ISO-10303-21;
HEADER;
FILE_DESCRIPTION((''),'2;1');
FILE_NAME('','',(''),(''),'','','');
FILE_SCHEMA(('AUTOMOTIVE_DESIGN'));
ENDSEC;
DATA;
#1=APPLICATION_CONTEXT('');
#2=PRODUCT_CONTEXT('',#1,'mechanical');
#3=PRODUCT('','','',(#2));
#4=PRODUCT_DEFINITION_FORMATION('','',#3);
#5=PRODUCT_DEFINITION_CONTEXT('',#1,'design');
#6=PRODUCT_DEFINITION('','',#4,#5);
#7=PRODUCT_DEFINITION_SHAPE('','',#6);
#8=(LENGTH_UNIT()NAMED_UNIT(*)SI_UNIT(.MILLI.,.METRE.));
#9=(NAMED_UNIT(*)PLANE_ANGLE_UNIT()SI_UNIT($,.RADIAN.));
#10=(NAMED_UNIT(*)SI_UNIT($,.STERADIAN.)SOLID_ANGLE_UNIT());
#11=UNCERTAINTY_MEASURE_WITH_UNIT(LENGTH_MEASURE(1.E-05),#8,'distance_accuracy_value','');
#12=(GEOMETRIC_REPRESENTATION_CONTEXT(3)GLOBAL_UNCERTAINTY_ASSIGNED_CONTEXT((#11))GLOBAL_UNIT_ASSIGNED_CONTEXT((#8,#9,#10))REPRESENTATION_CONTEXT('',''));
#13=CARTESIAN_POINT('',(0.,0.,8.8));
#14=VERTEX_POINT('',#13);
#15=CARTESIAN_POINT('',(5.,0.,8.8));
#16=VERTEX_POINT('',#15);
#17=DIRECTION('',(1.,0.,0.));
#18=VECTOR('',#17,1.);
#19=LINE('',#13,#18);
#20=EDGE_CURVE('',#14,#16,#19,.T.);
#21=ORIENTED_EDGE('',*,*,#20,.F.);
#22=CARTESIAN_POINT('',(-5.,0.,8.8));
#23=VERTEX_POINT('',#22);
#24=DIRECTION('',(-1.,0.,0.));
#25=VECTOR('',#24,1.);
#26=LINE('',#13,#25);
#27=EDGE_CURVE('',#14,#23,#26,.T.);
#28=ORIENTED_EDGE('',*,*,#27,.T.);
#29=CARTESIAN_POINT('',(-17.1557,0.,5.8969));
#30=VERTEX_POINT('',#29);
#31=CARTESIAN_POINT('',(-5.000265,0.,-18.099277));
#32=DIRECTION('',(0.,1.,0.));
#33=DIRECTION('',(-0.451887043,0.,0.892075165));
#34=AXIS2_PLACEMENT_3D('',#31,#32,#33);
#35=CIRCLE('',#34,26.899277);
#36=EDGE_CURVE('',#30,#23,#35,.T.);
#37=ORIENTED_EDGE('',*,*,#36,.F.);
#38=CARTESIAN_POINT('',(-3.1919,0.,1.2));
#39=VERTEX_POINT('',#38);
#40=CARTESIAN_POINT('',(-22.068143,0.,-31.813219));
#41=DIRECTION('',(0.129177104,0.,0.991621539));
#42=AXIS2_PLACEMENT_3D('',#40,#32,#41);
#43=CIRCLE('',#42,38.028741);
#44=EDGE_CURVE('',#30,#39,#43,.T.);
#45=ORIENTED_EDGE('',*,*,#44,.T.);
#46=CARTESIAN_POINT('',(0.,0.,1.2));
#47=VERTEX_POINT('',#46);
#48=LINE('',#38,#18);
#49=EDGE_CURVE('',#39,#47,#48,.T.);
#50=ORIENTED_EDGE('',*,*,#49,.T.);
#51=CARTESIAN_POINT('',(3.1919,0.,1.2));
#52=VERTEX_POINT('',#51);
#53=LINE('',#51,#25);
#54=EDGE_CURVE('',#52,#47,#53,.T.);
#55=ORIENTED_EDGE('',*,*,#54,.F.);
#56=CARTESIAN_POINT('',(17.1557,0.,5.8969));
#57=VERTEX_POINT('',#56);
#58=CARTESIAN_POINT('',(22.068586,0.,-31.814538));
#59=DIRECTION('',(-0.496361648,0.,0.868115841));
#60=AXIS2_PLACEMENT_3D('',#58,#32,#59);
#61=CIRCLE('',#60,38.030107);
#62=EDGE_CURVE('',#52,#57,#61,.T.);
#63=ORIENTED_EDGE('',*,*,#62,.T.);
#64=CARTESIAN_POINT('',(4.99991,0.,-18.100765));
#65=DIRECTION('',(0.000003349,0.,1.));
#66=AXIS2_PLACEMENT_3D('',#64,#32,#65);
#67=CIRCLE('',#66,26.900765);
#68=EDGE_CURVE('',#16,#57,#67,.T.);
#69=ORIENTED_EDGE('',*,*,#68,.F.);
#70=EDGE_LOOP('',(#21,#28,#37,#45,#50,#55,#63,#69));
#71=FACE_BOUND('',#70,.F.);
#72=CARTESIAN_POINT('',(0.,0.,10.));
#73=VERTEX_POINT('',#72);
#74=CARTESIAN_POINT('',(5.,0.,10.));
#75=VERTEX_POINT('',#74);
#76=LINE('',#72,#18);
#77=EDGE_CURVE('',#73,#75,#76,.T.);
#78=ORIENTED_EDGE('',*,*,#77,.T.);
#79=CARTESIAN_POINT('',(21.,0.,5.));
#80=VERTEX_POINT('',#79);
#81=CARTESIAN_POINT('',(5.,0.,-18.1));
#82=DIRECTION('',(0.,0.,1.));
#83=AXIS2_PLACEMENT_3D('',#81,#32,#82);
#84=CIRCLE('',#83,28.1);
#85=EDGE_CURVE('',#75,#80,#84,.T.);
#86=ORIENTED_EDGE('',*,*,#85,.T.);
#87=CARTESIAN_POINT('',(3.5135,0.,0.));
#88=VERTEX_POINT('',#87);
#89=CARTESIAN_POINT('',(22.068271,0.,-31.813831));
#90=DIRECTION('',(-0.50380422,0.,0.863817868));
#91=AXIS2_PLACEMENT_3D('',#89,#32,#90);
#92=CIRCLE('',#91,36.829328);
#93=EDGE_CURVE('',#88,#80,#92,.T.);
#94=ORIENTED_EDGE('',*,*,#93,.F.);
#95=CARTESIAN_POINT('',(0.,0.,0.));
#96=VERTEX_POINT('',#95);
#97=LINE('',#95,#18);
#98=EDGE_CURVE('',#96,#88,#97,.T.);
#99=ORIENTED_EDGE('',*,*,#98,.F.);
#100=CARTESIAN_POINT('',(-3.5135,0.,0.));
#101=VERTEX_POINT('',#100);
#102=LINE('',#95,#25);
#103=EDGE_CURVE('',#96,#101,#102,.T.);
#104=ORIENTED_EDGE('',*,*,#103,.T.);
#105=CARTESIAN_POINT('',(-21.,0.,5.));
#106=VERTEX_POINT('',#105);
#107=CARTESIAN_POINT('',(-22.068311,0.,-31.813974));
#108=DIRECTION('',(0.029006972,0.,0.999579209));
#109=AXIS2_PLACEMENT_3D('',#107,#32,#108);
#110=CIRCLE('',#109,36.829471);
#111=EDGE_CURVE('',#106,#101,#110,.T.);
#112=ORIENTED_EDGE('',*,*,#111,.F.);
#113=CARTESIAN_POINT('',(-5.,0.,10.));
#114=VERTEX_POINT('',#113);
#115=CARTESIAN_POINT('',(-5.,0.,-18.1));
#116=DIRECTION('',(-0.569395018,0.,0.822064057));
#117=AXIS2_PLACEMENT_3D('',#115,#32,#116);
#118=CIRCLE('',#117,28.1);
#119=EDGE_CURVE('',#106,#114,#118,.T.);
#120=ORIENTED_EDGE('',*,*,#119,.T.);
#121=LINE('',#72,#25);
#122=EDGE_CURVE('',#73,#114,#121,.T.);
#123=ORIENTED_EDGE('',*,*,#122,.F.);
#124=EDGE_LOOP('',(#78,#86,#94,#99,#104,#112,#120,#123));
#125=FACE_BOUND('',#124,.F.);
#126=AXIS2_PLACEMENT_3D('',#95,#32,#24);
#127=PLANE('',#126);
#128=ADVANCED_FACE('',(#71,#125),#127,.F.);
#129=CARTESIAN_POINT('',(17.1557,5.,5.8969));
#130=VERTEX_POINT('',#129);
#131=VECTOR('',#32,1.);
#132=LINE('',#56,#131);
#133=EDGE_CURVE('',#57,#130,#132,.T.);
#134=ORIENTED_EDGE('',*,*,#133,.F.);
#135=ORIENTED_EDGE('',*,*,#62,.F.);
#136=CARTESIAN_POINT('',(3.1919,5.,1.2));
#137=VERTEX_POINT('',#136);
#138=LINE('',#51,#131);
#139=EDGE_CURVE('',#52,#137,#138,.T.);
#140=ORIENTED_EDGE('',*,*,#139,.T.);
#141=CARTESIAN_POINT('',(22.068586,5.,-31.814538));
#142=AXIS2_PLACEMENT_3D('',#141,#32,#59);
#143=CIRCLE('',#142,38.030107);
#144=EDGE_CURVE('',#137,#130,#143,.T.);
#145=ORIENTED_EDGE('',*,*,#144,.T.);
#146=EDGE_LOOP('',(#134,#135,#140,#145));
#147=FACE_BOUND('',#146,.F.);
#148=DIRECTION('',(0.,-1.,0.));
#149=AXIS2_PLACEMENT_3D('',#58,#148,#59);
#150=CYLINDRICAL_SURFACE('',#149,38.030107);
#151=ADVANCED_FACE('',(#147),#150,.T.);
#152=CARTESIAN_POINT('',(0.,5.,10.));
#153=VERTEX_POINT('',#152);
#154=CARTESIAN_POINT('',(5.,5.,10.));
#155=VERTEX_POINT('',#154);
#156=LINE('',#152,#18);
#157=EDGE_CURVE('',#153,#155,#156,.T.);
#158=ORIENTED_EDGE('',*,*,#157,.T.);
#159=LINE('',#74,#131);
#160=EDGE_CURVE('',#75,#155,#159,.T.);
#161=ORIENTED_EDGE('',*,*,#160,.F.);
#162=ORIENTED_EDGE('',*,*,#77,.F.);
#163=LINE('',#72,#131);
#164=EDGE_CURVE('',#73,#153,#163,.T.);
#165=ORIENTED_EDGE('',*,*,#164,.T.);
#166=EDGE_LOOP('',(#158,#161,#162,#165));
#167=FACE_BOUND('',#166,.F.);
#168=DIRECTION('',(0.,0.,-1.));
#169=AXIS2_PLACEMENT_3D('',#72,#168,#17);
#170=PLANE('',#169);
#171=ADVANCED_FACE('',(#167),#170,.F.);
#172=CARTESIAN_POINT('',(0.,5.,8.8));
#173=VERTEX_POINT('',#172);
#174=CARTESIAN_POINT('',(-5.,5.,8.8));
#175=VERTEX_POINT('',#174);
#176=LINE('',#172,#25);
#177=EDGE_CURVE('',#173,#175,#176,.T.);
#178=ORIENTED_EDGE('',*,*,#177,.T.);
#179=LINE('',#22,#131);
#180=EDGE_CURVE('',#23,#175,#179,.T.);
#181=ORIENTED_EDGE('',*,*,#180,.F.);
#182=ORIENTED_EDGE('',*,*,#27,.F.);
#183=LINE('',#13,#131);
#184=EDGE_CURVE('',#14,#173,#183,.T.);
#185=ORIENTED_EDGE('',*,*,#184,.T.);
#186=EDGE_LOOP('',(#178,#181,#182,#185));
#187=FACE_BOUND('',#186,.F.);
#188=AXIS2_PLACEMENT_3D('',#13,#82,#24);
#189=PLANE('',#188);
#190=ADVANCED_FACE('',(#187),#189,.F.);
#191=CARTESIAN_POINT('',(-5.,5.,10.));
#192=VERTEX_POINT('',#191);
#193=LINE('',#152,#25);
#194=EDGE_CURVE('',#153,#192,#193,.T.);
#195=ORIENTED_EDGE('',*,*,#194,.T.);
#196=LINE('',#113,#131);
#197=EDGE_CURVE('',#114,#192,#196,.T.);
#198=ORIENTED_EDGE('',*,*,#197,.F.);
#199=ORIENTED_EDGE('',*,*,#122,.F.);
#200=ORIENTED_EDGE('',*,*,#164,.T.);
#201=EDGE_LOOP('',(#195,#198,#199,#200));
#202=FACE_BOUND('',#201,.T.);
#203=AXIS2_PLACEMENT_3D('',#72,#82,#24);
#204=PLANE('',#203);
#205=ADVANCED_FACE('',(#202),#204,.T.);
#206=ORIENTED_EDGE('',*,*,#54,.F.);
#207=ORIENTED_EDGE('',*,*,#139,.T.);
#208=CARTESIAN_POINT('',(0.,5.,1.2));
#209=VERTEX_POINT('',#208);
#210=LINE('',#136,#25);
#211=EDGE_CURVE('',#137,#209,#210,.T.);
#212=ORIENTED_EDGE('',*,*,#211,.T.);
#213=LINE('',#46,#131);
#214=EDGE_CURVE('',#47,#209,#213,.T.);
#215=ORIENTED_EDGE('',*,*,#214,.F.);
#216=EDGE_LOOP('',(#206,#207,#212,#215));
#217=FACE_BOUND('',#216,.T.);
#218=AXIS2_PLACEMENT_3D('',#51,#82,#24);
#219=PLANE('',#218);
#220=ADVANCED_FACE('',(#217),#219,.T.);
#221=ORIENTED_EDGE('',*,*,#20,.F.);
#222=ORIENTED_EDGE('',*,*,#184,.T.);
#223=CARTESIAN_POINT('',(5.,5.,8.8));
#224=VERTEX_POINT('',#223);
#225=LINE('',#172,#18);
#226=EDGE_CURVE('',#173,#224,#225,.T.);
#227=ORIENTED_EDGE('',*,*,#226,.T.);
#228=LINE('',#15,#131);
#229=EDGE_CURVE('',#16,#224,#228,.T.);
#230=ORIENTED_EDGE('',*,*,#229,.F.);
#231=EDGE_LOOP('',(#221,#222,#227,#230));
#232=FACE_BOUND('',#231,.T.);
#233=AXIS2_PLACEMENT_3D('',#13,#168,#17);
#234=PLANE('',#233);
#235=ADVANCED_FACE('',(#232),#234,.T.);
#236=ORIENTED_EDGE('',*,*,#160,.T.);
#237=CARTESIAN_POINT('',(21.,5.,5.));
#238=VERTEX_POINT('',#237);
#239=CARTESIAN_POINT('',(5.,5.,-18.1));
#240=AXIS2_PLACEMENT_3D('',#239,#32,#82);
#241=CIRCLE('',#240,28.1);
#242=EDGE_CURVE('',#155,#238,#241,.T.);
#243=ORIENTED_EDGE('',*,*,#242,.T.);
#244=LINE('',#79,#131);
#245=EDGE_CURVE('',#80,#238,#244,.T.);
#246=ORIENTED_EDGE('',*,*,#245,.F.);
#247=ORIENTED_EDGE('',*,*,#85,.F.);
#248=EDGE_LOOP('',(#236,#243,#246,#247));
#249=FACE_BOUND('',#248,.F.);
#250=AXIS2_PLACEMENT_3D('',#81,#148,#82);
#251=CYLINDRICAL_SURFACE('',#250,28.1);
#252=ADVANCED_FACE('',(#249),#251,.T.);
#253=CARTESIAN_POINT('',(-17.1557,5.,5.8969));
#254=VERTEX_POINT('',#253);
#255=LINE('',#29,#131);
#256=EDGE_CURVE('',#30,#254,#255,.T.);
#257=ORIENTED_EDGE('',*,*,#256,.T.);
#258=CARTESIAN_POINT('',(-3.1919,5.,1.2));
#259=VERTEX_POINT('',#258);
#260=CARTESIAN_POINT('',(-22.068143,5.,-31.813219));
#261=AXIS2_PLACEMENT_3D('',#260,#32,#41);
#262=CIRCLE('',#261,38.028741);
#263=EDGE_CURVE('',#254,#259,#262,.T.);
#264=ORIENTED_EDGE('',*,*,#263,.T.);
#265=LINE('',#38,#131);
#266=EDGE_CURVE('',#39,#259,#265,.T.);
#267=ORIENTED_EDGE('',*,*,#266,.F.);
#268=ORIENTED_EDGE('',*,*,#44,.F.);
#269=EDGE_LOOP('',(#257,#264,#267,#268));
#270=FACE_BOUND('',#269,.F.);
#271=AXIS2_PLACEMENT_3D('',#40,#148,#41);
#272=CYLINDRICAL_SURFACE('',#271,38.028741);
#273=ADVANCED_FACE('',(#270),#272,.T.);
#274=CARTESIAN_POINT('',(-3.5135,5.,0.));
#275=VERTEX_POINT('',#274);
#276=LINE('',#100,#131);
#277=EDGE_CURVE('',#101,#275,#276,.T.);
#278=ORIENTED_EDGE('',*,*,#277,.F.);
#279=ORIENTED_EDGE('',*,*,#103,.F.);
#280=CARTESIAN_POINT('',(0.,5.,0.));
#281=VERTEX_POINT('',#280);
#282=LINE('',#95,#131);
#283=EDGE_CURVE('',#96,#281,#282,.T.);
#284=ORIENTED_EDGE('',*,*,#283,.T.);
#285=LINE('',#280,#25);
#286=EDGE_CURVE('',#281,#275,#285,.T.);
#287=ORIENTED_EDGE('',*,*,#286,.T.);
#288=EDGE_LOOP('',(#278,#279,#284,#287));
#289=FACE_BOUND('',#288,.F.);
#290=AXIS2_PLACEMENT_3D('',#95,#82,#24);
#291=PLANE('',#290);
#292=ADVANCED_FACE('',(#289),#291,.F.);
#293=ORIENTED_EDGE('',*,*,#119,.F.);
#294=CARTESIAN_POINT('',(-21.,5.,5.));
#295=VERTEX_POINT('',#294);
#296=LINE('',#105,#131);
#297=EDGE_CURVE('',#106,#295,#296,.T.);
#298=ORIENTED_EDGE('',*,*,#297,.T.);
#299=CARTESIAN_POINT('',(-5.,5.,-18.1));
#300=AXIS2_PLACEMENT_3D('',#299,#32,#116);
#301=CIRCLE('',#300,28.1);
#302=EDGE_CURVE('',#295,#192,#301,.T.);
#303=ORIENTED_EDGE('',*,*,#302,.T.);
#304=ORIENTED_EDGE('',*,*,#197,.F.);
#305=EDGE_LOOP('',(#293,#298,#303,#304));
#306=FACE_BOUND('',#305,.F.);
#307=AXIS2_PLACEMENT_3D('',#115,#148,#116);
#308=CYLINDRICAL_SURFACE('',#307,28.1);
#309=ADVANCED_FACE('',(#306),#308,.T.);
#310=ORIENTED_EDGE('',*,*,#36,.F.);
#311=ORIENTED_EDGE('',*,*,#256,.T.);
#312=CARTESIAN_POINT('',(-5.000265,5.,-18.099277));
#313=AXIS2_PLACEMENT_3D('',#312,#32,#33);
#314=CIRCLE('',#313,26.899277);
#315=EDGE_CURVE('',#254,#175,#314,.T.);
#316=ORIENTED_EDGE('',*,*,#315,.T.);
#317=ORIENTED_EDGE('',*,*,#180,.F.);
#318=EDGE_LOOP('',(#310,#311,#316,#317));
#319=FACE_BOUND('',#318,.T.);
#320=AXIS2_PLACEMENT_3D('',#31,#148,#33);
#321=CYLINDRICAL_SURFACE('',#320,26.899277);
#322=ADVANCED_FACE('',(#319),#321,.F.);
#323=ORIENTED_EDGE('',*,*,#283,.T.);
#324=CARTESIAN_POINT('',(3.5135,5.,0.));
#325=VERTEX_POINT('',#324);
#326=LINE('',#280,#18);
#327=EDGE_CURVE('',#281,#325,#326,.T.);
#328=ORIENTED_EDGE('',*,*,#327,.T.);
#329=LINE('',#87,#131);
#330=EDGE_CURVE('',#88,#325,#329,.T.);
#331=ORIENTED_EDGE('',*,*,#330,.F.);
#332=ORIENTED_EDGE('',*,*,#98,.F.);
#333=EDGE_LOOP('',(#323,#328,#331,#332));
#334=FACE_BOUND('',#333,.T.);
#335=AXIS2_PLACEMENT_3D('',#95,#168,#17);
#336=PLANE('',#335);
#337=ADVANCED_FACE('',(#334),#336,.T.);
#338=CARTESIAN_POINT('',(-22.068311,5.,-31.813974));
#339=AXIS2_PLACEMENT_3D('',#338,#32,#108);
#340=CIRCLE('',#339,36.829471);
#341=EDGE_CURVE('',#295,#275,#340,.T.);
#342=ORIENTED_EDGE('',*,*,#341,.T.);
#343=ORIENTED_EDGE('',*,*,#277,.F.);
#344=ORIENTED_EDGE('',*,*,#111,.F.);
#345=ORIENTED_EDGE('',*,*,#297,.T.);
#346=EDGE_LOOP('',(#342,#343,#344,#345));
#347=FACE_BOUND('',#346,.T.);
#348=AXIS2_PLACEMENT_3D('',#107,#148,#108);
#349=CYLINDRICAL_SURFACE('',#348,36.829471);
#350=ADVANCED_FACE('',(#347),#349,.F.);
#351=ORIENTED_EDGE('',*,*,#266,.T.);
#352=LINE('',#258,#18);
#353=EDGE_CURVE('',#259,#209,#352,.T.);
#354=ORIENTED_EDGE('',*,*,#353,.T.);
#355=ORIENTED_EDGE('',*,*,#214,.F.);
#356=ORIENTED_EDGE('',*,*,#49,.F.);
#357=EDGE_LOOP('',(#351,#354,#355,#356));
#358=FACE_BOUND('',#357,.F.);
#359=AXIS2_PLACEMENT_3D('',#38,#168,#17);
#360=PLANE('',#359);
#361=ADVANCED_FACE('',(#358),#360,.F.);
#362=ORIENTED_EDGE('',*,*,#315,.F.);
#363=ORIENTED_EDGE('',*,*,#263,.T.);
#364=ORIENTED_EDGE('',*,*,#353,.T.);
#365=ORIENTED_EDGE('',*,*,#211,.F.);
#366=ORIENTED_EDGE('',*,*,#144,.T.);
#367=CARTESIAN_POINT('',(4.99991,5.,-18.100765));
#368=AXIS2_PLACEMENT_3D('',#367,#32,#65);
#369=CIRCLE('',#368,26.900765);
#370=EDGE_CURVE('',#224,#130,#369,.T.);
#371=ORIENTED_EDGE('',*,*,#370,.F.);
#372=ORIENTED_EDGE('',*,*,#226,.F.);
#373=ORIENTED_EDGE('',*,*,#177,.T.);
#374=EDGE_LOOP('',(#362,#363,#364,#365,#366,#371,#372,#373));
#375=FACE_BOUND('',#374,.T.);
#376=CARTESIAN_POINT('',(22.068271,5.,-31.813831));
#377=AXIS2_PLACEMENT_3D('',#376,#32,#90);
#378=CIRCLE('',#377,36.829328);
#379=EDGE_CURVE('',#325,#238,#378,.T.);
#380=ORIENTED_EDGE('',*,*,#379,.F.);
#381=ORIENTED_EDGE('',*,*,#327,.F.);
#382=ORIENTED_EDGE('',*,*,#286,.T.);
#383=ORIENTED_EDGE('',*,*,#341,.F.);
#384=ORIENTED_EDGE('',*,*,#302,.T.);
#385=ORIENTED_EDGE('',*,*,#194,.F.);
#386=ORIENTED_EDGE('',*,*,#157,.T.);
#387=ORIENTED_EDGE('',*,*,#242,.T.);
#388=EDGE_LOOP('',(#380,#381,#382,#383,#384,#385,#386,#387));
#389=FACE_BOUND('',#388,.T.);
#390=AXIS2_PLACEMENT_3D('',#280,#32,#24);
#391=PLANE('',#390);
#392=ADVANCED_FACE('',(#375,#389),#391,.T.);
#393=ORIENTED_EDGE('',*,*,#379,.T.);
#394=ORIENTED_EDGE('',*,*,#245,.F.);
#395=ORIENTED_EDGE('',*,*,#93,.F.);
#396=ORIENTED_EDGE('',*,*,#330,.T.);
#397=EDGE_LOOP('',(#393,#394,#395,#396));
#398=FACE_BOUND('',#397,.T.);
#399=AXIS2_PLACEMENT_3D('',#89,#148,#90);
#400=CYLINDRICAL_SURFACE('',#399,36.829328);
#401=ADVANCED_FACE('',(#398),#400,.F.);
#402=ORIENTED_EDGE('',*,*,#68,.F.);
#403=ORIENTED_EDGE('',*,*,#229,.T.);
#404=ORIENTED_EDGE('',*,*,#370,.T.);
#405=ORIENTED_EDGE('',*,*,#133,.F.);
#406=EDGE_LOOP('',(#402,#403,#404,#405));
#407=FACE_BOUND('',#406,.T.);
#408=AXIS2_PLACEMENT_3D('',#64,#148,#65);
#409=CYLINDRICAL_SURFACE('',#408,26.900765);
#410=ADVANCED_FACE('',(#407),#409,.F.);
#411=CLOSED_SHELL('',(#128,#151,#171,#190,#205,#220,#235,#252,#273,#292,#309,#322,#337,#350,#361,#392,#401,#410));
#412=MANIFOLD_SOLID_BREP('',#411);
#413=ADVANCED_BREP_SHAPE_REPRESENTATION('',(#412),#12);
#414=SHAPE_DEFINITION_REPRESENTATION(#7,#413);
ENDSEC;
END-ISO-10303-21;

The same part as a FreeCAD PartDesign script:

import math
import FreeCAD as App
import Part
import Sketcher
from FreeCAD import Vector

doc = App.newDocument("Part")
body = doc.addObject("PartDesign::Body", "Body")

# Sketch on XZ plane
sketch1 = body.newObject("Sketcher::SketchObject", "Sketch")
sketch1.AttachmentSupport = (doc.getObject("XZ_Plane"), [""])
sketch1.MapMode = "FlatFace"
sketch1.addGeometry([
    Part.LineSegment(Vector(4, 0, 0), Vector(-4, 0, 0)),  # 0
    Part.ArcOfCircle(Part.Circle(Vector(-22, -32, 0), Vector(0, 0, 1), 37), math.radians(60), math.radians(88)),  # 1
    Part.ArcOfCircle(Part.Circle(Vector(-5, -18, 0), Vector(0, 0, 1), 28), math.radians(90), math.radians(125)),  # 2
    Part.LineSegment(Vector(-5, 10, 0), Vector(5, 10, 0)),  # 3
    Part.ArcOfCircle(Part.Circle(Vector(5, -18, 0), Vector(0, 0, 1), 28), math.radians(55), math.radians(90)),  # 4
    Part.ArcOfCircle(Part.Circle(Vector(22, -32, 0), Vector(0, 0, 1), 37), math.radians(92), math.radians(120)),  # 5
    Part.LineSegment(Vector(5, 9, 0), Vector(-5, 9, 0)),  # 6
    Part.ArcOfCircle(Part.Circle(Vector(-5, -18, 0), Vector(0, 0, 1), 27), math.radians(90), math.radians(117)),  # 7
    Part.ArcOfCircle(Part.Circle(Vector(-22, -32, 0), Vector(0, 0, 1), 38), math.radians(60), math.radians(83)),  # 8
    Part.LineSegment(Vector(-3, 1, 0), Vector(3, 1, 0)),  # 9
    Part.ArcOfCircle(Part.Circle(Vector(22, -32, 0), Vector(0, 0, 1), 38), math.radians(97), math.radians(120)),  # 10
    Part.ArcOfCircle(Part.Circle(Vector(5, -18, 0), Vector(0, 0, 1), 27), math.radians(63), math.radians(90)),  # 11
], False)
sketch1.addConstraint([
    Sketcher.Constraint("Coincident", 0, 2, 1, 1),
    Sketcher.Constraint("Coincident", 1, 2, 2, 2),
    Sketcher.Constraint("Tangent", 2, 1, 3, 1),
    Sketcher.Constraint("Tangent", 3, 2, 4, 2),
    Sketcher.Constraint("Coincident", 4, 1, 5, 1),
    Sketcher.Constraint("Coincident", 5, 2, 0, 1),
    Sketcher.Constraint("Tangent", 6, 2, 7, 1),
    Sketcher.Constraint("Coincident", 7, 2, 8, 2),
    Sketcher.Constraint("Coincident", 8, 1, 9, 1),
    Sketcher.Constraint("Coincident", 9, 2, 10, 2),
    Sketcher.Constraint("Coincident", 10, 1, 11, 1),
    Sketcher.Constraint("Tangent", 11, 2, 6, 1),
    Sketcher.Constraint("Horizontal", 0),
    Sketcher.Constraint("Horizontal", 3),
    Sketcher.Constraint("Horizontal", 6),
    Sketcher.Constraint("Horizontal", 9),
    Sketcher.Constraint("Coincident", 7, 3, 2, 3),
    Sketcher.Constraint("Coincident", 8, 3, 1, 3),
    Sketcher.Constraint("Coincident", 10, 3, 5, 3),
    Sketcher.Constraint("Coincident", 11, 3, 4, 3),
    Sketcher.Constraint("Equal", 2, 4),
    Sketcher.Constraint("Equal", 1, 5),
    Sketcher.Constraint("Equal", 8, 10),
    Sketcher.Constraint("Symmetric", 0, 2, 5, 2, -1, 1),
    Sketcher.Constraint("Symmetric", 1, 2, 4, 1, -2),
    Sketcher.Constraint("DistanceX", 3, 1, 3, 2, 10.0),
    Sketcher.Constraint("DistanceX", 1, 2, -1, 1, 21.0),
    Sketcher.Constraint("DistanceY", -1, 1, 1, 2, 5.0),
    Sketcher.Constraint("DistanceY", -1, 1, 2, 1, 10.0),
    Sketcher.Constraint("DistanceY", -1, 1, 8, 1, 1.2),
    Sketcher.Constraint("Radius", 7, 26.9),
    Sketcher.Constraint("Radius", 1, 36.8294),
    Sketcher.Constraint("Radius", 8, 38.0294),
    Sketcher.Constraint("DistanceX", 0, 2, 0, 1, 7.027),
])
pad1 = body.newObject("PartDesign::Pad", "Pad")
pad1.Profile = sketch1
pad1.Length = 5
pad1.Reversed = True

doc.recompute()
